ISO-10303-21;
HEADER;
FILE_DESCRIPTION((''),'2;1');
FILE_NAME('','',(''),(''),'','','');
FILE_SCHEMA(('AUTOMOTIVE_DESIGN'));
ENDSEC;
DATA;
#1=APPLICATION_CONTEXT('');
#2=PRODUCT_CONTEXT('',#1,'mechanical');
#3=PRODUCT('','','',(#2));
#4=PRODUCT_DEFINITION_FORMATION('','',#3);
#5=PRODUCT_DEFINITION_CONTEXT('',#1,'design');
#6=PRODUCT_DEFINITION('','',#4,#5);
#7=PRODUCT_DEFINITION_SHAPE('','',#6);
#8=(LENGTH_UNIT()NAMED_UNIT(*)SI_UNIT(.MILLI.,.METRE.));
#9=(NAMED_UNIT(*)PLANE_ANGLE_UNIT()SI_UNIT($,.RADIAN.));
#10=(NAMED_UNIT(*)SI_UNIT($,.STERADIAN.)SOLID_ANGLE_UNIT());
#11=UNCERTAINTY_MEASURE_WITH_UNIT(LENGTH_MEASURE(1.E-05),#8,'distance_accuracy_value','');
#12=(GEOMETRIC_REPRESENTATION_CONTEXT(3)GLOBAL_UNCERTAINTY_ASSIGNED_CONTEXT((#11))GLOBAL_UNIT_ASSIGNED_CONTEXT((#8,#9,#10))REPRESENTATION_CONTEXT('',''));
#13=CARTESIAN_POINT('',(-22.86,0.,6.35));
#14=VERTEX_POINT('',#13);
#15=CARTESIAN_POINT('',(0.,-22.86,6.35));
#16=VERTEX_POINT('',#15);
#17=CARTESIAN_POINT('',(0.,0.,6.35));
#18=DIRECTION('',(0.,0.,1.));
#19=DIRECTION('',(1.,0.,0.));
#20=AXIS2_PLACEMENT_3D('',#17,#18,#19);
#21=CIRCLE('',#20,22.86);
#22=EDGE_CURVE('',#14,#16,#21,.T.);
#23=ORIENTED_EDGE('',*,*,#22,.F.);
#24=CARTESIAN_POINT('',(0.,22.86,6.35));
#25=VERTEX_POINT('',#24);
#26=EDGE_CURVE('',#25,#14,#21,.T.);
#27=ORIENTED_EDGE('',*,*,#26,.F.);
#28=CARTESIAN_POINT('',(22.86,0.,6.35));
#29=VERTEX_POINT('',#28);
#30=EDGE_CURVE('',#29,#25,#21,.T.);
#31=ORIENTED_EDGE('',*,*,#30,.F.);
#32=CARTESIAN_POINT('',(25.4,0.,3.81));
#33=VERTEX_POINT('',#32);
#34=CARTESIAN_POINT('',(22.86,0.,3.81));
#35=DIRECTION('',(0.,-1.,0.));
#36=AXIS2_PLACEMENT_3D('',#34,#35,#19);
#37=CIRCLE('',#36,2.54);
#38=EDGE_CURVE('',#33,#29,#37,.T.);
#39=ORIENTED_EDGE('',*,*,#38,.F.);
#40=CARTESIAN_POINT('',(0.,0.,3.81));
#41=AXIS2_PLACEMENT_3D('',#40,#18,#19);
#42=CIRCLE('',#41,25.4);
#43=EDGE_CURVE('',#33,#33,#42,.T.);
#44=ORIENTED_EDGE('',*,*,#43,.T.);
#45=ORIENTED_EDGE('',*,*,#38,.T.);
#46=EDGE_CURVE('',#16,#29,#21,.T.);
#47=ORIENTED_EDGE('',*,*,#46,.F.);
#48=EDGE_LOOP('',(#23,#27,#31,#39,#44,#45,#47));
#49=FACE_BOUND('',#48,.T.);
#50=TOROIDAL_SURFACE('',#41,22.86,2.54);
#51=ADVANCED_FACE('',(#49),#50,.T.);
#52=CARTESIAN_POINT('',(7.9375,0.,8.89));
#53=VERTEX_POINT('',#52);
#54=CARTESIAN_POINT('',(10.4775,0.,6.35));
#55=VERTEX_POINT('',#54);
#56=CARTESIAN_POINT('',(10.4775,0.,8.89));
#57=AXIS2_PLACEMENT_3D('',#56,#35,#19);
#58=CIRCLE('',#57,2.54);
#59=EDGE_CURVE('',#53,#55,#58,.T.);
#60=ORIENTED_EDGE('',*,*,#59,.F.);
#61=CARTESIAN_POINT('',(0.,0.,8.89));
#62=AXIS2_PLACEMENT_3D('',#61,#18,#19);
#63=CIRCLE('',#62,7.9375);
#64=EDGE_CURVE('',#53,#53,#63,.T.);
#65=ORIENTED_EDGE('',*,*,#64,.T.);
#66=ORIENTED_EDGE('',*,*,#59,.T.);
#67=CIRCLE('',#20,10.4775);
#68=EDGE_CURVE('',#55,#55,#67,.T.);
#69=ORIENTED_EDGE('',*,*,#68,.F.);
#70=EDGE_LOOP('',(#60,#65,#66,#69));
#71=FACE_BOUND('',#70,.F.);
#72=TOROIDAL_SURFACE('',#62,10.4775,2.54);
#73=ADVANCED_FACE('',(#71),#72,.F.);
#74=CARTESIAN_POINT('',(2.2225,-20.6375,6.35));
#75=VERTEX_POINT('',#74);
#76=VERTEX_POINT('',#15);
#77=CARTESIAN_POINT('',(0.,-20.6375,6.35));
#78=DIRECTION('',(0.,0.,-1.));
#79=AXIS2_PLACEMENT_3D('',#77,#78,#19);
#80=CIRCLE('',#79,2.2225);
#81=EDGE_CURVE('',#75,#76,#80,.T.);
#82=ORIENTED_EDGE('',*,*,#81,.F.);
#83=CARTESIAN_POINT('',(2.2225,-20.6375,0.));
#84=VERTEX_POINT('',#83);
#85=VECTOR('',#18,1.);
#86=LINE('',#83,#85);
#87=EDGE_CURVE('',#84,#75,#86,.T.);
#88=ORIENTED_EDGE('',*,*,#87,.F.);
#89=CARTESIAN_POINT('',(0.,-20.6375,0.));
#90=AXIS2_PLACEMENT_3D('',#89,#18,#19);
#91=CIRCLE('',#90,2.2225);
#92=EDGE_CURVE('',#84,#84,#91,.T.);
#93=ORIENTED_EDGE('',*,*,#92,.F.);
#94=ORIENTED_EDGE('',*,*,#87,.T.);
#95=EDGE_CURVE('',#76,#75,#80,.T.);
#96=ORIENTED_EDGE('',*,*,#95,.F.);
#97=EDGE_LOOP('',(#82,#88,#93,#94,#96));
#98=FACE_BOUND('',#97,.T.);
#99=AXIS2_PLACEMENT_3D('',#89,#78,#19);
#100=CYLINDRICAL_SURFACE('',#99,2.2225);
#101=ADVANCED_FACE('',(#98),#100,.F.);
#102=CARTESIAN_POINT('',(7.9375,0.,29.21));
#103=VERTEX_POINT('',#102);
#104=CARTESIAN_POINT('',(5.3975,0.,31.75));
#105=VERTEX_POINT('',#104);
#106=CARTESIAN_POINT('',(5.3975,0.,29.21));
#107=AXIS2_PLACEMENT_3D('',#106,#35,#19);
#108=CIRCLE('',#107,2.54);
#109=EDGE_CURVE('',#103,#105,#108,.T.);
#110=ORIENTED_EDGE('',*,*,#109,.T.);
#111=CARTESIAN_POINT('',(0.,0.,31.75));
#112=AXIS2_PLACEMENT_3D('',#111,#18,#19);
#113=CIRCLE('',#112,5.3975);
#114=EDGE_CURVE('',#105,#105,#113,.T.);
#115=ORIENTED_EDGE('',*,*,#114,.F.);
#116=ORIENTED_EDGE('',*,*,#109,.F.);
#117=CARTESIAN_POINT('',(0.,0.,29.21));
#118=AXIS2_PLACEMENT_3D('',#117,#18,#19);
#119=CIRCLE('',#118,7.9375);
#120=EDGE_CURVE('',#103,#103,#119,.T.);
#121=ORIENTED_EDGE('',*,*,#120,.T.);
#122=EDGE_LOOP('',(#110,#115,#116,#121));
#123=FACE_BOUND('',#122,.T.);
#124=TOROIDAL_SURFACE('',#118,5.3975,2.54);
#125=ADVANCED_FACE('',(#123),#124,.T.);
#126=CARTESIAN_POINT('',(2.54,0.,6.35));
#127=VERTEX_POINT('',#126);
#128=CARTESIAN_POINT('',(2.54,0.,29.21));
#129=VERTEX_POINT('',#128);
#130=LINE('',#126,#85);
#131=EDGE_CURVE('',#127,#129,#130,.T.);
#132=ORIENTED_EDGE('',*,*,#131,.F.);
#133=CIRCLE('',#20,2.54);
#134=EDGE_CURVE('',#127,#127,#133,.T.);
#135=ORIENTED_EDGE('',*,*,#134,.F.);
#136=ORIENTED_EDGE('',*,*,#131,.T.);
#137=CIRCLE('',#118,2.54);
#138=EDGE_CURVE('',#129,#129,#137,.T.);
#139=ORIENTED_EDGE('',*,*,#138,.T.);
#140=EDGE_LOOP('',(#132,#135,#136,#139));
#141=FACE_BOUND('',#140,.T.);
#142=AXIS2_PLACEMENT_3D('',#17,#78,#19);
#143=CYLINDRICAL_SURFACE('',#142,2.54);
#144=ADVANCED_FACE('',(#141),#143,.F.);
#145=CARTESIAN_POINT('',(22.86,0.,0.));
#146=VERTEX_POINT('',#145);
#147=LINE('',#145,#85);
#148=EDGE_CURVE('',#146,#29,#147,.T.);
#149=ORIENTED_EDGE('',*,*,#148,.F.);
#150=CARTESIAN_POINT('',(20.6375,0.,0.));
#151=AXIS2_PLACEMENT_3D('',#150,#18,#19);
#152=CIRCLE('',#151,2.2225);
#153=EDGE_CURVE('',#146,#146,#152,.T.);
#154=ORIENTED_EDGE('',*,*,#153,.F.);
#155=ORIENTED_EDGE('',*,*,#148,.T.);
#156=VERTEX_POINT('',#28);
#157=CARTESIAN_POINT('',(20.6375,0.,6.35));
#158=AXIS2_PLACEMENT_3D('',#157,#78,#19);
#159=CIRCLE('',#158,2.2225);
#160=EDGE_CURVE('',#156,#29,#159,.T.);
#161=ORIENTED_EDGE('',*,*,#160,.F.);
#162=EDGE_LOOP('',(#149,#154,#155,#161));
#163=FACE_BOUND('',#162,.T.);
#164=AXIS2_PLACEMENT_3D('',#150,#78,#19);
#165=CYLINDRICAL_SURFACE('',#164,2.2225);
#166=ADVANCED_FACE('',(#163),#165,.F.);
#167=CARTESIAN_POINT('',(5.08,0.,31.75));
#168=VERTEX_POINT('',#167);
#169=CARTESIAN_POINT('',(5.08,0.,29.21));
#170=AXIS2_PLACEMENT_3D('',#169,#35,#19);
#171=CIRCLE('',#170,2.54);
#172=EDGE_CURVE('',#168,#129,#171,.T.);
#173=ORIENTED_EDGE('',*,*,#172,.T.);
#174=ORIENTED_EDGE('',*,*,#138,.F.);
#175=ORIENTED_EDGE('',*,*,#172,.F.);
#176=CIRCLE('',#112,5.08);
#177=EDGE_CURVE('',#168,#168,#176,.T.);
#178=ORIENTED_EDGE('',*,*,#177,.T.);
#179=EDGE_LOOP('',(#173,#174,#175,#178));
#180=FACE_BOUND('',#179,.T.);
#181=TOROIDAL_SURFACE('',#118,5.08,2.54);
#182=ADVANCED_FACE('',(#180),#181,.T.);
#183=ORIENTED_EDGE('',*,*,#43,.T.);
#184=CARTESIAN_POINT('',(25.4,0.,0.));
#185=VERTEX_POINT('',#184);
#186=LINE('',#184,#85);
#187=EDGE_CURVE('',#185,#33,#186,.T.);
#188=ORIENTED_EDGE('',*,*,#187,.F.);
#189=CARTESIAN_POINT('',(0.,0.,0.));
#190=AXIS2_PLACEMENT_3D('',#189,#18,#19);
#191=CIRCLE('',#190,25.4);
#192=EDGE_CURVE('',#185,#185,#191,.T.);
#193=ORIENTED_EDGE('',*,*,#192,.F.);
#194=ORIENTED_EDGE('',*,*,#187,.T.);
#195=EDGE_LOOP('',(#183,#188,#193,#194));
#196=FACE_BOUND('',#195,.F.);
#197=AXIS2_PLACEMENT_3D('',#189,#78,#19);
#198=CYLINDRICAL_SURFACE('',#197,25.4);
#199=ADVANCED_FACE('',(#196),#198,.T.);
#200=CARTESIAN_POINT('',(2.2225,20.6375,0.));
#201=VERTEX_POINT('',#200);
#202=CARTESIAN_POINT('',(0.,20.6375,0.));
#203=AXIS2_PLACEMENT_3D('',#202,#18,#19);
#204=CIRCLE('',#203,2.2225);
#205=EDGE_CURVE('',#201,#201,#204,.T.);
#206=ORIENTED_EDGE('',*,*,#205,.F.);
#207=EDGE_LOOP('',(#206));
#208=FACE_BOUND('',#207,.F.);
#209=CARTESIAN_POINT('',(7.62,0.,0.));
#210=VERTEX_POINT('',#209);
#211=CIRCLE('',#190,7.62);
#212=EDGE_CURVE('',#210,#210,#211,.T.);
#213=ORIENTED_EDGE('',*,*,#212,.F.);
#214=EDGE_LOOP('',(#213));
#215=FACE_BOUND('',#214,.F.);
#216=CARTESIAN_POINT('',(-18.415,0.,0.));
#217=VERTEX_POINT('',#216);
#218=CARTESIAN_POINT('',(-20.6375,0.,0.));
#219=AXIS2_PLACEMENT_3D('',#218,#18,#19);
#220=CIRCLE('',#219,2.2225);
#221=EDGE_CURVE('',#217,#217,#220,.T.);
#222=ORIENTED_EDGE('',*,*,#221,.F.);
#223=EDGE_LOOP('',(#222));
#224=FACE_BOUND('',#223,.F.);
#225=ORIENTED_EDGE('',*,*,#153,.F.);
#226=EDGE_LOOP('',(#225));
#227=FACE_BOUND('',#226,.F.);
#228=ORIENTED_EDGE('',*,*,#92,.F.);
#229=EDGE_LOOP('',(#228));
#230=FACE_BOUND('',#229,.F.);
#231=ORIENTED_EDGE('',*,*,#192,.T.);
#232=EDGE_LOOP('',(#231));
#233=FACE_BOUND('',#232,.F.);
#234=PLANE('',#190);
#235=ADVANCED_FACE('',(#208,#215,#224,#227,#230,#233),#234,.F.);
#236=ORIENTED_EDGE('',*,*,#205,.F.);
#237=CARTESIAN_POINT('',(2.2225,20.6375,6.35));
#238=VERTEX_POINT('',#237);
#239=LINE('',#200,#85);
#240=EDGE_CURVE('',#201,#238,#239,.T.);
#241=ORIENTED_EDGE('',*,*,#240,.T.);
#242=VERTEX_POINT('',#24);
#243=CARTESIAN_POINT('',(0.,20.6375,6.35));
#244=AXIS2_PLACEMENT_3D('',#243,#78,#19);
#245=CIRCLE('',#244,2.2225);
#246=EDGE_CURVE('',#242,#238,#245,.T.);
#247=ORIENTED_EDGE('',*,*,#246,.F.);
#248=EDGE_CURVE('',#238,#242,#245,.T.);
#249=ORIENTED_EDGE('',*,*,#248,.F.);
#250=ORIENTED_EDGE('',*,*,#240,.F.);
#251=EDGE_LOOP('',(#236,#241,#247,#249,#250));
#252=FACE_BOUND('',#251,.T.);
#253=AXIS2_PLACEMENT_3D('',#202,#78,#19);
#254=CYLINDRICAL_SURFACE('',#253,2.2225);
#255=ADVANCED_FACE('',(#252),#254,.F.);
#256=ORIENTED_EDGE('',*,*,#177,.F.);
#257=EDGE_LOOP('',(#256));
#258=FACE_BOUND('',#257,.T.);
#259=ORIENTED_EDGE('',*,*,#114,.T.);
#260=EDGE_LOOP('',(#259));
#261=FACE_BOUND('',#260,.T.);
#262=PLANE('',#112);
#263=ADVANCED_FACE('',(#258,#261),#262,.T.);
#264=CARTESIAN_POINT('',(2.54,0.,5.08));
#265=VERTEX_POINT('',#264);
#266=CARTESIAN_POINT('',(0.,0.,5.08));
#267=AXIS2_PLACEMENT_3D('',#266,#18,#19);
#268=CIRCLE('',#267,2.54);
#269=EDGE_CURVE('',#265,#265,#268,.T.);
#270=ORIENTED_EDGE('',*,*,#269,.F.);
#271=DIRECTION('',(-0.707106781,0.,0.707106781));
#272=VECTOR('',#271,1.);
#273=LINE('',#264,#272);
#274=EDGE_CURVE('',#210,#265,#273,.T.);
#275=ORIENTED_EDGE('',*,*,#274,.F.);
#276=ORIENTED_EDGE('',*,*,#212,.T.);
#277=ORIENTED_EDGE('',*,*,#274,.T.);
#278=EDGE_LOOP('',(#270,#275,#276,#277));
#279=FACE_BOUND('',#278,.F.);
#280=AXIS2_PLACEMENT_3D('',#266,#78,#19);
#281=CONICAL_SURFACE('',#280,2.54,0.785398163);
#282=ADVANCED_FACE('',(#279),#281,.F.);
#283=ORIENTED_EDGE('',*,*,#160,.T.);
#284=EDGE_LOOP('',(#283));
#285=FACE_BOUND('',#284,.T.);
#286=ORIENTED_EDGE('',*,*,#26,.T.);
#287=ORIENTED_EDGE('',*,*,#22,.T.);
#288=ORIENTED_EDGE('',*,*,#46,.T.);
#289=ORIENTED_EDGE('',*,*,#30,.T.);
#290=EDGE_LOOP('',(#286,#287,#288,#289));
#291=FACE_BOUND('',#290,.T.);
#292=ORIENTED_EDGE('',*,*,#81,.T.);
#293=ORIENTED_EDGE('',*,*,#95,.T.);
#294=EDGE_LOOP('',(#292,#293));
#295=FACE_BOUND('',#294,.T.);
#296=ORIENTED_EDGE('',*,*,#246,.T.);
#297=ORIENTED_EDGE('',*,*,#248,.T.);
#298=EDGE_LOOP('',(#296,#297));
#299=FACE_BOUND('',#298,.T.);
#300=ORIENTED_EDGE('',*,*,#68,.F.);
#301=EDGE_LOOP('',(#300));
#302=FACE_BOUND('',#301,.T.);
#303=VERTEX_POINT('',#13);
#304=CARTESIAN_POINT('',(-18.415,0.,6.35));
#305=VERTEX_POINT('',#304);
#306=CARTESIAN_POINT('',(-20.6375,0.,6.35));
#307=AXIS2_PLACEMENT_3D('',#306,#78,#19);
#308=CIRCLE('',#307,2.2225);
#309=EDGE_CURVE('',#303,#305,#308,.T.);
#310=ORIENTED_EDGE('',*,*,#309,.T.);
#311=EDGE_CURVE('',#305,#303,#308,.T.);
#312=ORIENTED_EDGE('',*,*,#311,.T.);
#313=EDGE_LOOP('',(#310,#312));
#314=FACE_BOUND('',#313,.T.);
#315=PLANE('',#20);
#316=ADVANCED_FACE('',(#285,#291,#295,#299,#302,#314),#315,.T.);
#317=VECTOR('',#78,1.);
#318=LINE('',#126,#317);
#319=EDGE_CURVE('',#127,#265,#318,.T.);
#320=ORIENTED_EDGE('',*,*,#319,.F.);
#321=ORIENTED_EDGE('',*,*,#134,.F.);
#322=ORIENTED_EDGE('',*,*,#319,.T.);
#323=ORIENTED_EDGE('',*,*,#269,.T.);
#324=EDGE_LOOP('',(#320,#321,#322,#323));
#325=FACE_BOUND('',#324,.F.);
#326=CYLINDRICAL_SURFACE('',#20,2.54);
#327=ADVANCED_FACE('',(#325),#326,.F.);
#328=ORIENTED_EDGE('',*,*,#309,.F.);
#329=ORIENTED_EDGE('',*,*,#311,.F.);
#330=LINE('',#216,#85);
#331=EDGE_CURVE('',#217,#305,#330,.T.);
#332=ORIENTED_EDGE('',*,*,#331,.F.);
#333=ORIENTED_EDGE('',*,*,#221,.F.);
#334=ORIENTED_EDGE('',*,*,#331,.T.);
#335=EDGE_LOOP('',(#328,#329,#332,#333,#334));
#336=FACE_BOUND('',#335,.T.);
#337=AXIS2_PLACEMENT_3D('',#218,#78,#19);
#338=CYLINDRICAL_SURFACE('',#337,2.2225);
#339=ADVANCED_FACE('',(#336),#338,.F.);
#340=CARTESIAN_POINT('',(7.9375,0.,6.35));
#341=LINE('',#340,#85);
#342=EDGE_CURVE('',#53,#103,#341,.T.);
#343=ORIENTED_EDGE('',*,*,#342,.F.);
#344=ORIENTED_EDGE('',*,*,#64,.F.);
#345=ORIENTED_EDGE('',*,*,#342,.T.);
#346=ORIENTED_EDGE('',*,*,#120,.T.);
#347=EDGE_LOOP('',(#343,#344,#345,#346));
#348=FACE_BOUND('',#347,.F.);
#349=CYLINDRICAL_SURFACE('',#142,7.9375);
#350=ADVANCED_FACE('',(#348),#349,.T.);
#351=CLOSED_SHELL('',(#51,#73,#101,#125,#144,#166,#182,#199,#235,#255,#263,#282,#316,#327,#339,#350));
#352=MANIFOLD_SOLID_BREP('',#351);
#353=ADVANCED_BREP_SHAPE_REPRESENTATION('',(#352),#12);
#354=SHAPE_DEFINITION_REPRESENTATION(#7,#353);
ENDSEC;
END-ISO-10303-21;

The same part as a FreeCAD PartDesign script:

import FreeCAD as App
import Part
import Sketcher
Q = App.Units.Quantity


def edges_at(feature, points):
    """Names of the edges that pass closest to the given points."""
    edges = feature.Shape.Edges
    near = lambda p: min(range(len(edges)), key=lambda i: edges[i].distToShape(Part.Vertex(*p))[0])
    return sorted({f"Edge{near(p) + 1}" for p in points})

doc = App.newDocument("Part")
body = doc.addObject("PartDesign::Body", "Body")

sketch1 = doc.addObject("Sketcher::SketchObject", "Sketch")
body.addObject(sketch1)
sketch1.AttachmentSupport = (doc.XY_Plane, [""])
sketch1.MapMode = "FlatFace"
sketch1.addGeometry(Part.Circle(App.Vector(0, 0, 0), App.Vector(0, 0, 1), 25), False)
sketch1.addConstraint(Sketcher.Constraint("Coincident", 0, 3, -1, 1))
sketch1.addConstraint(Sketcher.Constraint("Diameter", 0, Q("2 in")))
pad1 = doc.addObject("PartDesign::Pad", "Pad")
body.addObject(pad1)
pad1.Profile = sketch1
pad1.Length = Q("0.25 in")
doc.recompute()

fillet = doc.addObject("PartDesign::Fillet", "Fillet")
body.addObject(fillet)
fillet.Base = (pad1, edges_at(pad1, [(-25.4, 0, 6.35)]))
fillet.Radius = Q("0.1 in")

sketch2 = doc.addObject("Sketcher::SketchObject", "Sketch001")
body.addObject(sketch2)
sketch2.AttachmentSupport = (doc.XY_Plane, [""])
sketch2.MapMode = "FlatFace"
sketch2.AttachmentOffset = App.Placement(App.Vector(0, 0, 0.25 * 25.4), App.Rotation())
sketch2.addGeometry(Part.Circle(App.Vector(0, 0, 0), App.Vector(0, 0, 1), 2.5), False)
sketch2.addConstraint(Sketcher.Constraint("Coincident", 0, 3, -1, 1))
sketch2.addConstraint(Sketcher.Constraint("Diameter", 0, Q("0.2 in")))
pocket1 = doc.addObject("PartDesign::Pocket", "Pocket")
body.addObject(pocket1)
pocket1.Profile = sketch2
pocket1.Length = Q("1 in")

sketch3 = doc.addObject("Sketcher::SketchObject", "Sketch002")
body.addObject(sketch3)
sketch3.AttachmentSupport = (doc.XY_Plane, [""])
sketch3.MapMode = "FlatFace"
sketch3.AttachmentOffset = App.Placement(App.Vector(0, 0, 0.25 * 25.4), App.Rotation())
sketch3.addGeometry(Part.Circle(App.Vector(0, 0, 0), App.Vector(0, 0, 1), 7.9), False)
sketch3.addGeometry(Part.Circle(App.Vector(0, 0, 0), App.Vector(0, 0, 1), 2.5), False)
sketch3.addConstraint(Sketcher.Constraint("Coincident", 0, 3, -1, 1))
sketch3.addConstraint(Sketcher.Constraint("Coincident", 1, 3, -1, 1))
sketch3.addConstraint(Sketcher.Constraint("Diameter", 1, Q("0.2 in")))
sketch3.addConstraint(Sketcher.Constraint("Diameter", 0, Q("0.625 in")))
pad2 = doc.addObject("PartDesign::Pad", "Pad001")
body.addObject(pad2)
pad2.Profile = sketch3
pad2.Length = Q("1 in")
doc.recompute()

fillet2 = doc.addObject("PartDesign::Fillet", "Fillet001")
body.addObject(fillet2)
fillet2.Base = (pad2, edges_at(pad2, [(-22.86, 0, 6.35), (-7.938, 0, 6.35)]))
fillet2.Radius = Q("0.1 in")

sketch4 = doc.addObject("Sketcher::SketchObject", "Sketch003")
body.addObject(sketch4)
sketch4.AttachmentSupport = (doc.XY_Plane, [""])
sketch4.MapMode = "FlatFace"
sketch4.addGeometry(Part.Circle(App.Vector(20.6, 0, 0), App.Vector(0, 0, 1), 2.2), False)
sketch4.addGeometry(Part.Circle(App.Vector(0, 20.6, 0), App.Vector(0, 0, 1), 2.2), False)
sketch4.addGeometry(Part.Circle(App.Vector(-20.6, 0, 0), App.Vector(0, 0, 1), 2.2), False)
sketch4.addGeometry(Part.Circle(App.Vector(0, -20.6, 0), App.Vector(0, 0, 1), 2.2), False)
sketch4.addConstraint(Sketcher.Constraint("Equal", 0, 1))
sketch4.addConstraint(Sketcher.Constraint("Equal", 1, 2))
sketch4.addConstraint(Sketcher.Constraint("Equal", 2, 3))
sketch4.addConstraint(Sketcher.Constraint("Symmetric", 0, 3, 2, 3, -1, 1))
sketch4.addConstraint(Sketcher.Constraint("Symmetric", 1, 3, 3, 3, -1, 1))
sketch4.addConstraint(Sketcher.Constraint("PointOnObject", 0, 3, -1))
sketch4.addConstraint(Sketcher.Constraint("PointOnObject", 1, 3, -2))
sketch4.addConstraint(Sketcher.Constraint("Diameter", 0, Q("0.175 in")))
sketch4.addConstraint(Sketcher.Constraint("DistanceX", -1, 1, 0, 3, Q("0.8125 in")))
sketch4.addConstraint(Sketcher.Constraint("DistanceY", -1, 1, 1, 3, Q("0.8125 in")))
pocket2 = doc.addObject("PartDesign::Pocket", "Pocket001")
body.addObject(pocket2)
pocket2.Profile = sketch4
pocket2.Length = Q("1 in")
pocket2.Reversed = True
doc.recompute()

fillet3 = doc.addObject("PartDesign::Fillet", "Fillet002")
body.addObject(fillet3)
fillet3.Base = (pocket2, edges_at(pocket2, [(-7.938, 0, 31.75), (-2.54, 0, 31.75)]))
fillet3.Radius = Q("0.1 in")
doc.recompute()

chamfer = doc.addObject("PartDesign::Chamfer", "Chamfer")
body.addObject(chamfer)
chamfer.Base = (fillet3, edges_at(fillet3, [(-2.54, 0, 0)]))
chamfer.Size = Q("0.2 in")

doc.recompute()
